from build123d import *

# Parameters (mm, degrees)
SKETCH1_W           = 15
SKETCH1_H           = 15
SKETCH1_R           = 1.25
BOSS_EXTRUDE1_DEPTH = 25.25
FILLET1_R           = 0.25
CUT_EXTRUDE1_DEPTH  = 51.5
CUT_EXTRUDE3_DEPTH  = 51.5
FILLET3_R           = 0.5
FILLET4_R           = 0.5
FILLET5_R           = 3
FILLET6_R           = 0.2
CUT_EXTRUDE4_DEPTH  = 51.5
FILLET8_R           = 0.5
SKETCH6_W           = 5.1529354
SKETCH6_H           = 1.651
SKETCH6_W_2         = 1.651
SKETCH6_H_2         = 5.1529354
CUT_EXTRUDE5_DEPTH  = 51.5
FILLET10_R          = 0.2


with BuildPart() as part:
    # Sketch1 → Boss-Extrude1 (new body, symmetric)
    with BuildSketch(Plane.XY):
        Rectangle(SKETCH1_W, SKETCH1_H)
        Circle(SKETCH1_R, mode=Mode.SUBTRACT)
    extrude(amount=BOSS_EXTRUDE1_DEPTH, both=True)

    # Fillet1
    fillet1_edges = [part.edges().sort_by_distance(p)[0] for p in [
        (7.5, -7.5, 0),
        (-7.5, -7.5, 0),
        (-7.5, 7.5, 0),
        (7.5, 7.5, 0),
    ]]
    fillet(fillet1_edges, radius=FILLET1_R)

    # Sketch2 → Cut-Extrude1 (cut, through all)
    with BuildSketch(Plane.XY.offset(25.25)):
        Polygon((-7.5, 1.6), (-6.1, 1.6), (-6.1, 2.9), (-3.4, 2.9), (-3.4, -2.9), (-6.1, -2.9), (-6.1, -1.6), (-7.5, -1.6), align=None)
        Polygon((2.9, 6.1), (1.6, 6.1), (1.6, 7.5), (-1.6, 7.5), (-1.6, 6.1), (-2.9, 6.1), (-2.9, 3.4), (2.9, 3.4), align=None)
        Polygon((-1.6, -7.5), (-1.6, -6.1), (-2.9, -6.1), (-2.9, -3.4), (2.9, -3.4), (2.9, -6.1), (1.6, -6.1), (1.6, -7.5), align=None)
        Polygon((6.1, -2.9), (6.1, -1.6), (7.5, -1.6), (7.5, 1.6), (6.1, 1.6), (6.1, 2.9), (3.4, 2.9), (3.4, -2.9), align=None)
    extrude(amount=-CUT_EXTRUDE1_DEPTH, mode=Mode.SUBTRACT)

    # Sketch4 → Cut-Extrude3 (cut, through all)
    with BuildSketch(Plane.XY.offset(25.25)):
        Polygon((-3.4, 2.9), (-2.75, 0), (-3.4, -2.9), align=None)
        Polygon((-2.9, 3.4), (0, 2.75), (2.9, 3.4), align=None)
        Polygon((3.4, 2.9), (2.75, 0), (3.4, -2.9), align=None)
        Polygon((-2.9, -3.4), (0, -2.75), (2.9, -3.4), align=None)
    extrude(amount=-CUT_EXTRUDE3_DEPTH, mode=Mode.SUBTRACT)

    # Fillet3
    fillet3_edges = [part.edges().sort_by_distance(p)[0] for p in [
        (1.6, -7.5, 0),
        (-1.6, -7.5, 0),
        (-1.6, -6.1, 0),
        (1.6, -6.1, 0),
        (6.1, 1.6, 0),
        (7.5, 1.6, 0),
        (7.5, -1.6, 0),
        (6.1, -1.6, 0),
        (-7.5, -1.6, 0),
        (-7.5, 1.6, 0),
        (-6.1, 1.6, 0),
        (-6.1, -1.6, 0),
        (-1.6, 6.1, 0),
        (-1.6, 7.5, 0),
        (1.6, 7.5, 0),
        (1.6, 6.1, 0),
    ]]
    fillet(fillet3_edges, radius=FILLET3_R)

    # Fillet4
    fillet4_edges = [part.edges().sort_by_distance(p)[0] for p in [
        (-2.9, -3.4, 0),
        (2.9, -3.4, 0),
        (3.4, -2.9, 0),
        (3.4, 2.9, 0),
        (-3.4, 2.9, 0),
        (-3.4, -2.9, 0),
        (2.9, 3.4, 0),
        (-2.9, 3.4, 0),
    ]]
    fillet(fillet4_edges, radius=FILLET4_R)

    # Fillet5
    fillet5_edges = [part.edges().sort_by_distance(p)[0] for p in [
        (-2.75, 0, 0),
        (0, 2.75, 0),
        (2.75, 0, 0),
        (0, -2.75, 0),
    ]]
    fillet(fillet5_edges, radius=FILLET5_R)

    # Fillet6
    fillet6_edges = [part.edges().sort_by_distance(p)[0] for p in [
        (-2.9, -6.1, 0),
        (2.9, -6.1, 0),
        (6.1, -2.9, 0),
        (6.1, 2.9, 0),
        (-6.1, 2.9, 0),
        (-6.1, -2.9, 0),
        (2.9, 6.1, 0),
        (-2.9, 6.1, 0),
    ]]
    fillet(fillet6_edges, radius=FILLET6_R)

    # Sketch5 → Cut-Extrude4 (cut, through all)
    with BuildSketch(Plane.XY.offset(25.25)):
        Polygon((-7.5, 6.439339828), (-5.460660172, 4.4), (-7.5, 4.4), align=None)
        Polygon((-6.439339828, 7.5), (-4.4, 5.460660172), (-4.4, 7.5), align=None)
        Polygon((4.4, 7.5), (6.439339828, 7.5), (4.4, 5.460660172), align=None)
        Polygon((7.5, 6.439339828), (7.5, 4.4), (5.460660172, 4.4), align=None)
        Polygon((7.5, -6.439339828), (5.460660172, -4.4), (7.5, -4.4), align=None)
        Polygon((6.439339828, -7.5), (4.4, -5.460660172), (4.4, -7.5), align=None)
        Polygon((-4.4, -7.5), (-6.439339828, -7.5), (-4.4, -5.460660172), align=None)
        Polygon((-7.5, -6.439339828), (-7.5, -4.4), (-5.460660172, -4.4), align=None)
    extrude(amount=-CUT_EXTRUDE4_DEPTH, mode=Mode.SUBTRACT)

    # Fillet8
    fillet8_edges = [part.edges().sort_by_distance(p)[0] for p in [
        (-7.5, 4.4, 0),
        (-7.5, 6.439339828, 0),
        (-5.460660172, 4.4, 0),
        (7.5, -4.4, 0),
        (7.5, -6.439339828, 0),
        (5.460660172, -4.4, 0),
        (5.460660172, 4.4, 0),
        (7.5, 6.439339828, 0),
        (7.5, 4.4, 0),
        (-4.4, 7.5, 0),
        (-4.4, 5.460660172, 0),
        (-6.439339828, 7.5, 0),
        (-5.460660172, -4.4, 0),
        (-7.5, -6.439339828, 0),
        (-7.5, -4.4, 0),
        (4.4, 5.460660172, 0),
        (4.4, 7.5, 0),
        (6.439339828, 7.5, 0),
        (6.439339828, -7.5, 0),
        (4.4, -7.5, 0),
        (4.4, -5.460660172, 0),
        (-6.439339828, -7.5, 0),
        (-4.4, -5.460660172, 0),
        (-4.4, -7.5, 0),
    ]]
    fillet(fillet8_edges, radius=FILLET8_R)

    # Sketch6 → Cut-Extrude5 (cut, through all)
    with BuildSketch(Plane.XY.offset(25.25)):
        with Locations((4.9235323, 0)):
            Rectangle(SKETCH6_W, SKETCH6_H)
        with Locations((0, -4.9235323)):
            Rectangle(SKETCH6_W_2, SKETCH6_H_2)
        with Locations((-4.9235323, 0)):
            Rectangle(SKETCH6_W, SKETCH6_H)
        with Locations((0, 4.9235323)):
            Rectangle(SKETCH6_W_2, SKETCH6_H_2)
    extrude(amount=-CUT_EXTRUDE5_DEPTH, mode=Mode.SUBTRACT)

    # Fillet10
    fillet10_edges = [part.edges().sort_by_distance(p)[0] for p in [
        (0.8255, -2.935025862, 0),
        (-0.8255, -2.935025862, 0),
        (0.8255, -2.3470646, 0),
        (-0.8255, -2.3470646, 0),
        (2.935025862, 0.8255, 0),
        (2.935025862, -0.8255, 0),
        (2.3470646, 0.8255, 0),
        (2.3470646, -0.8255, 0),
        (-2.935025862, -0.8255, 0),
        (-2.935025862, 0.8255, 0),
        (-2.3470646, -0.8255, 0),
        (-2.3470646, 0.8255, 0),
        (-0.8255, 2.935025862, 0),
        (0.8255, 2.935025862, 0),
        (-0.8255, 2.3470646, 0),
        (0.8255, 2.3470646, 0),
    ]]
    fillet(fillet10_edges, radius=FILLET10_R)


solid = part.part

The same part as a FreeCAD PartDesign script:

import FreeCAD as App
import Part
import Sketcher
Q = App.Units.Quantity


def edges_at(feature, points):
    """Names of the edges that pass closest to the given points."""
    edges = feature.Shape.Edges
    near = lambda p: min(range(len(edges)), key=lambda i: edges[i].distToShape(Part.Vertex(*p))[0])
    return sorted({f"Edge{near(p) + 1}" for p in points})


def add_polygon(sketch, points):
    """Adds a closed chain of lines whose ends are joined by coincident constraints."""
    first, n = sketch.GeometryCount, len(points)
    for a, b in zip(points, points[1:] + points[:1]):
        sketch.addGeometry(Part.LineSegment(App.Vector(*a, 0), App.Vector(*b, 0)), False)
    for i in range(n):
        sketch.addConstraint(Sketcher.Constraint("Coincident", first + i, 2, first + (i + 1) % n, 1))

doc = App.newDocument("Part")
body = doc.addObject("PartDesign::Body", "Body")

# Sketch on XY plane
sketch1 = body.newObject("Sketcher::SketchObject", "Sketch")
sketch1.AttachmentSupport = (doc.getObject("XY_Plane"), [""])
sketch1.MapMode = "FlatFace"
add_polygon(sketch1, [(-7.5, 7.5), (-7.5, -7.5), (7.5, -7.5), (7.5, 7.5)])  # lines 0-3
sketch1.addGeometry(Part.Circle(App.Vector(0, 0, 0), App.Vector(0, 0, 1), 1.25), False)  # 4
sketch1.addConstraint([
    Sketcher.Constraint("Vertical", 0),
    Sketcher.Constraint("Horizontal", 1),
    Sketcher.Constraint("Vertical", 2),
    Sketcher.Constraint("Horizontal", 3),
    Sketcher.Constraint("Coincident", 4, 3, -1, 1),
    Sketcher.Constraint("Symmetric", 0, 2, 2, 2, -1, 1),
    Sketcher.Constraint("Equal", 3, 0),
    Sketcher.Constraint("Diameter", 4, Q("2.5 mm")),
    Sketcher.Constraint("DistanceX", 1, 1, 1, 2, Q("15 mm")),
])
pad1 = body.newObject("PartDesign::Pad", "Pad")
pad1.Profile = sketch1
pad1.Length = 50.5
pad1.Midplane = True
doc.recompute()

fillet = body.newObject("PartDesign::Fillet", "Fillet")
fillet.Base = (pad1, edges_at(pad1, [
    (7.5, -7.5, 0),
    (-7.5, -7.5, 0),
    (-7.5, 7.5, 0),
    (7.5, 7.5, 0),
]))
fillet.Radius = 0.25

# Sketch on XY plane
sketch2 = body.newObject("Sketcher::SketchObject", "Sketch001")
sketch2.AttachmentSupport = (doc.getObject("XY_Plane"), [""])
sketch2.MapMode = "FlatFace"
sketch2.AttachmentOffset = App.Placement(App.Vector(0, 0, 25.25), App.Rotation())
add_polygon(sketch2, [(-6.1, 1.6), (-7.5, 1.6), (-7.5, -1.6), (-6.1, -1.6), (-6.1, -2.9), (-3.4, -2.9), (-3.4, 2.9), (-6.1, 2.9)])  # lines 0-7
add_polygon(sketch2, [(2.9, 6.1), (1.6, 6.1), (1.6, 7.5), (-1.6, 7.5), (-1.6, 6.1), (-2.9, 6.1), (-2.9, 3.4), (2.9, 3.4)])  # lines 8-15
add_polygon(sketch2, [(-1.6, -6.1), (-1.6, -7.5), (1.6, -7.5), (1.6, -6.1), (2.9, -6.1), (2.9, -3.4), (-2.9, -3.4), (-2.9, -6.1)])  # lines 16-23
add_polygon(sketch2, [(6.1, -2.9), (6.1, -1.6), (7.5, -1.6), (7.5, 1.6), (6.1, 1.6), (6.1, 2.9), (3.4, 2.9), (3.4, -2.9)])  # lines 24-31
sketch2.addConstraint([
    Sketcher.Constraint("Horizontal", 0),
    Sketcher.Constraint("Vertical", 1),
    Sketcher.Constraint("Horizontal", 2),
    Sketcher.Constraint("Vertical", 3),
    Sketcher.Constraint("Horizontal", 4),
    Sketcher.Constraint("Vertical", 5),
    Sketcher.Constraint("Horizontal", 6),
    Sketcher.Constraint("Vertical", 7),
    Sketcher.Constraint("Horizontal", 8),
    Sketcher.Constraint("Vertical", 9),
    Sketcher.Constraint("Horizontal", 10),
    Sketcher.Constraint("Vertical", 11),
    Sketcher.Constraint("Horizontal", 12),
    Sketcher.Constraint("Vertical", 13),
    Sketcher.Constraint("Horizontal", 14),
    Sketcher.Constraint("Vertical", 15),
    Sketcher.Constraint("Vertical", 16),
    Sketcher.Constraint("Horizontal", 17),
    Sketcher.Constraint("Vertical", 18),
    Sketcher.Constraint("Horizontal", 19),
    Sketcher.Constraint("Vertical", 20),
    Sketcher.Constraint("Horizontal", 21),
    Sketcher.Constraint("Vertical", 22),
    Sketcher.Constraint("Horizontal", 23),
    Sketcher.Constraint("Vertical", 24),
    Sketcher.Constraint("Horizontal", 25),
    Sketcher.Constraint("Vertical", 26),
    Sketcher.Constraint("Horizontal", 27),
    Sketcher.Constraint("Vertical", 28),
    Sketcher.Constraint("Horizontal", 29),
    Sketcher.Constraint("Vertical", 30),
    Sketcher.Constraint("Horizontal", 31),
    Sketcher.Constraint("Symmetric", 9, 2, 16, 2, -1, 1),
    Sketcher.Constraint("Symmetric", 11, 2, 18, 2, -1, 1),
    Sketcher.Constraint("Symmetric", 13, 2, 20, 2, -1, 1),
    Sketcher.Constraint("Symmetric", 15, 2, 22, 2, -1, 1),
    Sketcher.Constraint("Symmetric", 7, 2, 24, 2, -1, 1),
    Sketcher.Constraint("Symmetric", 1, 2, 26, 2, -1, 1),
    Sketcher.Constraint("Symmetric", 3, 2, 28, 2, -1, 1),
    Sketcher.Constraint("Symmetric", 5, 2, 30, 2, -1, 1),
    Sketcher.Constraint("Symmetric", 8, 2, 11, 2, -2),
    Sketcher.Constraint("Symmetric", 2, 2, 24, 2, -2),
    Sketcher.Constraint("Horizontal", 6, 2, 28, 2),
    Sketcher.Constraint("Vertical", 15, 2, 19, 2),
    Sketcher.Constraint("Equal", 17, 1),
    Sketcher.Constraint("Equal", 23, 3),
    Sketcher.Constraint("Equal", 27, 9),
    Sketcher.Constraint("Equal", 31, 13),
    Sketcher.Constraint("DistanceX", 0, 2, 0, 1, Q("1.4 mm")),
    Sketcher.Constraint("DistanceX", 4, 1, 4, 2, Q("2.7 mm")),
    Sketcher.Constraint("DistanceX", 8, 2, 8, 1, Q("1.3 mm")),
    Sketcher.Constraint("DistanceX", 10, 2, 10, 1, Q("3.2 mm")),
    Sketcher.Constraint("DistanceX", 5, 2, 8, 2, Q("5 mm")),
    Sketcher.Constraint("DistanceY", 4, 2, 8, 2, Q("9 mm")),
])
pocket1 = body.newObject("PartDesign::Pocket", "Pocket")
pocket1.Profile = sketch2
pocket1.Type = "ThroughAll"

# Sketch on XY plane
sketch3 = body.newObject("Sketcher::SketchObject", "Sketch002")
sketch3.AttachmentSupport = (doc.getObject("XY_Plane"), [""])
sketch3.MapMode = "FlatFace"
sketch3.AttachmentOffset = App.Placement(App.Vector(0, 0, 25.25), App.Rotation())
add_polygon(sketch3, [(-2.75, 0), (-3.4, 2.9), (-3.4, -2.9)])  # lines 0-2
add_polygon(sketch3, [(-2.9, 3.4), (0, 2.75), (2.9, 3.4)])  # lines 3-5
add_polygon(sketch3, [(3.4, 2.9), (2.75, 0), (3.4, -2.9)])  # lines 6-8
add_polygon(sketch3, [(0, -2.75), (-2.9, -3.4), (2.9, -3.4)])  # lines 9-11
sketch3.addConstraint([
    Sketcher.Constraint("Vertical", 1),
    Sketcher.Constraint("Horizontal", 5),
    Sketcher.Constraint("Vertical", 8),
    Sketcher.Constraint("Horizontal", 10),
    Sketcher.Constraint("Symmetric", 2, 2, 6, 2, -1, 1),
    Sketcher.Constraint("Symmetric", 0, 2, 7, 2, -1, 1),
    Sketcher.Constraint("Symmetric", 4, 2, 9, 2, -1, 1),
    Sketcher.Constraint("Symmetric", 3, 2, 11, 2, -1, 1),
    Sketcher.Constraint("PointOnObject", 2, 2, -1),
    Sketcher.Constraint("PointOnObject", 3, 2, -2),
    Sketcher.Constraint("Perpendicular", 2, 3),
    Sketcher.Constraint("Perpendicular", 0, 4),
    Sketcher.Constraint("Perpendicular", 3, 6),
    Sketcher.Constraint("Perpendicular", 6, 11),
    Sketcher.Constraint("Horizontal", 1, 2, 7, 2),
    Sketcher.Constraint("Equal", 10, 1),
    Sketcher.Constraint("DistanceX", 5, 2, 5, 1, Q("5.8 mm")),
    Sketcher.Constraint("DistanceX", 0, 2, -1, 1, Q("3.4 mm")),
    Sketcher.Constraint("DistanceY", -1, 1, 4, 2, Q("3.4 mm")),
    Sketcher.Constraint("DistanceX", 2, 2, 6, 2, Q("5.5 mm")),
])
pocket2 = body.newObject("PartDesign::Pocket", "Pocket001")
pocket2.Profile = sketch3
pocket2.Type = "ThroughAll"
doc.recompute()

fillet2 = body.newObject("PartDesign::Fillet", "Fillet001")
fillet2.Base = (pocket2, edges_at(pocket2, [
    (1.6, -7.5, 0),
    (-1.6, -7.5, 0),
    (-1.6, -6.1, 0),
    (1.6, -6.1, 0),
    (6.1, 1.6, 0),
    (7.5, 1.6, 0),
    (7.5, -1.6, 0),
    (6.1, -1.6, 0),
    (-7.5, -1.6, 0),
    (-7.5, 1.6, 0),
    (-6.1, 1.6, 0),
    (-6.1, -1.6, 0),
    (-1.6, 6.1, 0),
    (-1.6, 7.5, 0),
    (1.6, 7.5, 0),
    (1.6, 6.1, 0),
]))
fillet2.Radius = 0.5
doc.recompute()

fillet3 = body.newObject("PartDesign::Fillet", "Fillet002")
fillet3.Base = (fillet2, edges_at(fillet2, [
    (-2.9, -3.4, 0),
    (2.9, -3.4, 0),
    (3.4, -2.9, 0),
    (3.4, 2.9, 0),
    (-3.4, 2.9, 0),
    (-3.4, -2.9, 0),
    (2.9, 3.4, 0),
    (-2.9, 3.4, 0),
]))
fillet3.Radius = 0.5
doc.recompute()

fillet4 = body.newObject("PartDesign::Fillet", "Fillet003")
fillet4.Base = (fillet3, edges_at(fillet3, [
    (-2.75, 0, 0),
    (0, 2.75, 0),
    (2.75, 0, 0),
    (0, -2.75, 0),
]))
fillet4.Radius = 3
doc.recompute()

fillet5 = body.newObject("PartDesign::Fillet", "Fillet004")
fillet5.Base = (fillet4, edges_at(fillet4, [
    (-2.9, -6.1, 0),
    (2.9, -6.1, 0),
    (6.1, -2.9, 0),
    (6.1, 2.9, 0),
    (-6.1, 2.9, 0),
    (-6.1, -2.9, 0),
    (2.9, 6.1, 0),
    (-2.9, 6.1, 0),
]))
fillet5.Radius = 0.2

# Sketch on XY plane
sketch4 = body.newObject("Sketcher::SketchObject", "Sketch003")
sketch4.AttachmentSupport = (doc.getObject("XY_Plane"), [""])
sketch4.MapMode = "FlatFace"
sketch4.AttachmentOffset = App.Placement(App.Vector(0, 0, 25.25), App.Rotation())
add_polygon(sketch4, [(-5.46066, 4.4), (-7.5, 6.43934), (-7.5, 4.4)])  # lines 0-2
add_polygon(sketch4, [(-6.43934, 7.5), (-4.4, 5.46066), (-4.4, 7.5)])  # lines 3-5
add_polygon(sketch4, [(6.43934, 7.5), (4.4, 7.5), (4.4, 5.46066)])  # lines 6-8
add_polygon(sketch4, [(7.5, 4.4), (7.5, 6.43934), (5.46066, 4.4)])  # lines 9-11
add_polygon(sketch4, [(5.46066, -4.4), (7.5, -6.43934), (7.5, -4.4)])  # lines 12-14
add_polygon(sketch4, [(6.43934, -7.5), (4.4, -5.46066), (4.4, -7.5)])  # lines 15-17
add_polygon(sketch4, [(-6.43934, -7.5), (-4.4, -7.5), (-4.4, -5.46066)])  # lines 18-20
add_polygon(sketch4, [(-7.5, -4.4), (-7.5, -6.43934), (-5.46066, -4.4)])  # lines 21-23
sketch4.addConstraint([
    Sketcher.Constraint("Vertical", 1),
    Sketcher.Constraint("Horizontal", 2),
    Sketcher.Constraint("Vertical", 4),
    Sketcher.Constraint("Horizontal", 5),
    Sketcher.Constraint("Horizontal", 6),
    Sketcher.Constraint("Vertical", 7),
    Sketcher.Constraint("Vertical", 9),
    Sketcher.Constraint("Horizontal", 11),
    Sketcher.Constraint("Vertical", 13),
    Sketcher.Constraint("Horizontal", 14),
    Sketcher.Constraint("Vertical", 16),
    Sketcher.Constraint("Horizontal", 17),
    Sketcher.Constraint("Horizontal", 18),
    Sketcher.Constraint("Vertical", 19),
    Sketcher.Constraint("Vertical", 21),
    Sketcher.Constraint("Horizontal", 23),
    Sketcher.Constraint("Symmetric", 0, 2, 12, 2, -1, 1),
    Sketcher.Constraint("Symmetric", 2, 2, 14, 2, -1, 1),
    Sketcher.Constraint("Symmetric", 3, 2, 15, 2, -1, 1),
    Sketcher.Constraint("Symmetric", 5, 2, 17, 2, -1, 1),
    Sketcher.Constraint("Symmetric", 6, 2, 18, 2, -1, 1),
    Sketcher.Constraint("Symmetric", 9, 2, 21, 2, -1, 1),
    Sketcher.Constraint("Symmetric", 10, 2, 22, 2, -1, 1),
    Sketcher.Constraint("Symmetric", 4, 2, 6, 2, -2),
    Sketcher.Constraint("Symmetric", 0, 2, 9, 2, -2),
    Sketcher.Constraint("Symmetric", 2, 2, 10, 2, -2),
    Sketcher.Constraint("Parallel", 0, 3),
    Sketcher.Constraint("Perpendicular", 3, 8),
    Sketcher.Constraint("Parallel", 8, 10),
    Sketcher.Constraint("Perpendicular", 15, 20),
    Sketcher.Constraint("Horizontal", 3, 2, 7, 2),
    Sketcher.Constraint("Horizontal", 15, 2, 19, 2),
    Sketcher.Constraint("Equal", 2, 5),
    Sketcher.Constraint("DistanceX", 0, 2, -1, 1, Q("7.5 mm")),
    Sketcher.Constraint("DistanceY", -1, 1, 1, 2, Q("4.4 mm")),
    Sketcher.Constraint("DistanceX", 3, 2, -1, 1, Q("4.4 mm")),
    Sketcher.Constraint("DistanceY", -1, 1, 4, 2, Q("7.5 mm")),
    Sketcher.Constraint("DistanceX", 2, 1, 2, 2, Q("2.03934 mm")),
])
pocket3 = body.newObject("PartDesign::Pocket", "Pocket002")
pocket3.Profile = sketch4
pocket3.Type = "ThroughAll"
doc.recompute()

fillet6 = body.newObject("PartDesign::Fillet", "Fillet005")
fillet6.Base = (pocket3, edges_at(pocket3, [
    (-7.5, 4.4, 0),
    (-7.5, 6.439, 0),
    (-5.461, 4.4, 0),
    (7.5, -4.4, 0),
    (7.5, -6.439, 0),
    (5.461, -4.4, 0),
    (5.461, 4.4, 0),
    (7.5, 6.439, 0),
    (7.5, 4.4, 0),
    (-4.4, 7.5, 0),
    (-4.4, 5.461, 0),
    (-6.439, 7.5, 0),
    (-5.461, -4.4, 0),
    (-7.5, -6.439, 0),
    (-7.5, -4.4, 0),
    (4.4, 5.461, 0),
    (4.4, 7.5, 0),
    (6.439, 7.5, 0),
    (6.439, -7.5, 0),
    (4.4, -7.5, 0),
    (4.4, -5.461, 0),
    (-6.439, -7.5, 0),
    (-4.4, -5.461, 0),
    (-4.4, -7.5, 0),
]))
fillet6.Radius = 0.5

# Sketch on XY plane
sketch5 = body.newObject("Sketcher::SketchObject", "Sketch004")
sketch5.AttachmentSupport = (doc.getObject("XY_Plane"), [""])
sketch5.MapMode = "FlatFace"
sketch5.AttachmentOffset = App.Placement(App.Vector(0, 0, 25.25), App.Rotation())
add_polygon(sketch5, [(2.347065, 0.8255), (2.347065, -0.8255), (7.5, -0.8255), (7.5, 0.8255)])  # lines 0-3
add_polygon(sketch5, [(-0.8255, -2.347065), (-0.8255, -7.5), (0.8255, -7.5), (0.8255, -2.347065)])  # lines 4-7
add_polygon(sketch5, [(-7.5, 0.8255), (-7.5, -0.8255), (-2.347065, -0.8255), (-2.347065, 0.8255)])  # lines 8-11
add_polygon(sketch5, [(-0.8255, 7.5), (-0.8255, 2.347065), (0.8255, 2.347065), (0.8255, 7.5)])  # lines 12-15
sketch5.addConstraint([
    Sketcher.Constraint("Vertical", 0),
    Sketcher.Constraint("Horizontal", 1),
    Sketcher.Constraint("Vertical", 2),
    Sketcher.Constraint("Horizontal", 3),
    Sketcher.Constraint("Vertical", 4),
    Sketcher.Constraint("Horizontal", 5),
    Sketcher.Constraint("Vertical", 6),
    Sketcher.Constraint("Horizontal", 7),
    Sketcher.Constraint("Vertical", 8),
    Sketcher.Constraint("Horizontal", 9),
    Sketcher.Constraint("Vertical", 10),
    Sketcher.Constraint("Horizontal", 11),
    Sketcher.Constraint("Vertical", 12),
    Sketcher.Constraint("Horizontal", 13),
    Sketcher.Constraint("Vertical", 14),
    Sketcher.Constraint("Horizontal", 15),
    Sketcher.Constraint("Symmetric", 2, 2, 8, 2, -1, 1),
    Sketcher.Constraint("Symmetric", 0, 2, 10, 2, -1, 1),
    Sketcher.Constraint("Symmetric", 6, 2, 12, 2, -1, 1),
    Sketcher.Constraint("Symmetric", 4, 2, 14, 2, -1, 1),
    Sketcher.Constraint("Horizontal", 1, 2, 8, 2),
    Sketcher.Constraint("Vertical", 7, 2, 12, 2),
    Sketcher.Constraint("Equal", 15, 0),
    Sketcher.Constraint("Equal", 11, 4),
    Sketcher.Constraint("DistanceX", -1, 1, 1, 2, Q("7.5 mm")),
    Sketcher.Constraint("DistanceY", 4, 2, -1, 1, Q("7.5 mm")),
    Sketcher.Constraint("DistanceX", 5, 1, 5, 2, Q("1.651 mm")),
    Sketcher.Constraint("DistanceX", 1, 1, 1, 2, Q("5.152935 mm")),
])
pocket4 = body.newObject("PartDesign::Pocket", "Pocket003")
pocket4.Profile = sketch5
pocket4.Type = "ThroughAll"
doc.recompute()

fillet7 = body.newObject("PartDesign::Fillet", "Fillet006")
fillet7.Base = (pocket4, edges_at(pocket4, [
    (0.826, -2.935, 0),
    (-0.826, -2.935, 0),
    (0.826, -2.347, 0),
    (-0.826, -2.347, 0),
    (2.935, 0.826, 0),
    (2.935, -0.826, 0),
    (2.347, 0.826, 0),
    (2.347, -0.826, 0),
    (-2.935, -0.826, 0),
    (-2.935, 0.826, 0),
    (-2.347, -0.826, 0),
    (-2.347, 0.826, 0),
    (-0.826, 2.935, 0),
    (0.826, 2.935, 0),
    (-0.826, 2.347, 0),
    (0.826, 2.347, 0),
]))
fillet7.Radius = 0.2

doc.recompute()
